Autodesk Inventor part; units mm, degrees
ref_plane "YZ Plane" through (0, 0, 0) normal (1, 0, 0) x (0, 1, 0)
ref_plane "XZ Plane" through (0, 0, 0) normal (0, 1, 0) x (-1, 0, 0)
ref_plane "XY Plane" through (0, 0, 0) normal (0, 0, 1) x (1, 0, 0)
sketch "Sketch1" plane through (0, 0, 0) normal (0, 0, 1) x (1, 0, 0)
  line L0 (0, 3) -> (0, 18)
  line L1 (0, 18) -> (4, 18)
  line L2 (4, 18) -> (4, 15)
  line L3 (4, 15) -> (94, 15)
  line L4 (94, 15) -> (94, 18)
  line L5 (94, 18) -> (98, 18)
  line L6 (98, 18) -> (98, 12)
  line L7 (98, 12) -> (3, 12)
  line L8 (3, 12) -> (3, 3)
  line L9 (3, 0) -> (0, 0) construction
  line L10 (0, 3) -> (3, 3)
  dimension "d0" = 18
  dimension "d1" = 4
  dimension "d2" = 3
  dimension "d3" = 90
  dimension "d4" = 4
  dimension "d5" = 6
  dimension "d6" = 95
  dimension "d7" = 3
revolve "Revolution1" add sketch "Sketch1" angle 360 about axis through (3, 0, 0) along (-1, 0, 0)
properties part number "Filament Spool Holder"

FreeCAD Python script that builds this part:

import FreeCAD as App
import Part
import Sketcher
from FreeCAD import Vector

doc = App.newDocument("Part")
params = doc.addObject("Spreadsheet::Sheet", "Params")
for row, (alias, value) in enumerate([
    ("sketch1_width", "3 mm"),
    ("sketch1_width2", "95 mm"),
    ("sketch1_width3", "4 mm"),
    ("sketch1_height", "6 mm"),
    ("revolution_angle", "360 deg"),
], start=1):
    params.set(f"A{row}", alias)
    params.set(f"B{row}", "=" + value)
    params.setAlias(f"B{row}", alias)

body = doc.addObject("PartDesign::Body", "Body")

# Sketch on XY plane
sketch1 = doc.addObject("Sketcher::SketchObject", "Sketch")
body.addObject(sketch1)
sketch1.AttachmentSupport = (doc.XY_Plane, [""])
sketch1.MapMode = "FlatFace"
sketch1.addGeometry([
    Part.LineSegment(Vector(0, 18, 0), Vector(0, 3, 0)),  # 0
    Part.LineSegment(Vector(0, 3, 0), Vector(3, 3, 0)),  # 1
    Part.LineSegment(Vector(3, 3, 0), Vector(3, 12, 0)),  # 2
    Part.LineSegment(Vector(3, 12, 0), Vector(98, 12, 0)),  # 3
    Part.LineSegment(Vector(98, 12, 0), Vector(98, 18, 0)),  # 4
    Part.LineSegment(Vector(98, 18, 0), Vector(94, 18, 0)),  # 5
    Part.LineSegment(Vector(94, 18, 0), Vector(94, 15, 0)),  # 6
    Part.LineSegment(Vector(94, 15, 0), Vector(4, 15, 0)),  # 7
    Part.LineSegment(Vector(4, 15, 0), Vector(4, 18, 0)),  # 8
    Part.LineSegment(Vector(4, 18, 0), Vector(0, 18, 0)),  # 9
], False)
sketch1.addConstraint([
    Sketcher.Constraint("Coincident", 0, 2, 1, 1),
    Sketcher.Constraint("Coincident", 1, 2, 2, 1),
    Sketcher.Constraint("Coincident", 2, 2, 3, 1),
    Sketcher.Constraint("Coincident", 3, 2, 4, 1),
    Sketcher.Constraint("Coincident", 4, 2, 5, 1),
    Sketcher.Constraint("Coincident", 5, 2, 6, 1),
    Sketcher.Constraint("Coincident", 6, 2, 7, 1),
    Sketcher.Constraint("Coincident", 7, 2, 8, 1),
    Sketcher.Constraint("Coincident", 8, 2, 9, 1),
    Sketcher.Constraint("Coincident", 9, 2, 0, 1),
    Sketcher.Constraint("Vertical", 0),
    Sketcher.Constraint("Horizontal", 1),
    Sketcher.Constraint("Vertical", 2),
    Sketcher.Constraint("Horizontal", 3),
    Sketcher.Constraint("Vertical", 4),
    Sketcher.Constraint("Horizontal", 5),
    Sketcher.Constraint("Vertical", 6),
    Sketcher.Constraint("Horizontal", 7),
    Sketcher.Constraint("Vertical", 8),
    Sketcher.Constraint("Horizontal", 9),
    Sketcher.Constraint("PointOnObject", 0, 2, -2),
    Sketcher.Constraint("Horizontal", 5, 2, 8, 2),
    Sketcher.Constraint("Equal", 5, 9),
    Sketcher.Constraint("Equal", 1, 6),
    Sketcher.Constraint("DistanceX", 1, 1, 1, 2, 3.0),
    Sketcher.Constraint("DistanceX", 3, 1, 3, 2, 95.0),
    Sketcher.Constraint("DistanceX", 5, 2, 5, 1, 4.0),
    Sketcher.Constraint("DistanceY", 4, 1, 4, 2, 6.0),
    Sketcher.Constraint("DistanceY", -1, 1, 0, 2, 3.0),
    Sketcher.Constraint("DistanceY", -1, 1, 4, 2, 18.0),
])
sketch1.setExpression("Constraints[24]", "Params.sketch1_width")
sketch1.setExpression("Constraints[25]", "Params.sketch1_width2")
sketch1.setExpression("Constraints[26]", "Params.sketch1_width3")
sketch1.setExpression("Constraints[27]", "Params.sketch1_height")
revolution = doc.addObject("PartDesign::Revolution", "Revolution")
body.addObject(revolution)
revolution.Profile = sketch1
revolution.ReferenceAxis = (sketch1, ["H_Axis"])
revolution.setExpression("Angle", "Params.revolution_angle")

doc.recompute()
